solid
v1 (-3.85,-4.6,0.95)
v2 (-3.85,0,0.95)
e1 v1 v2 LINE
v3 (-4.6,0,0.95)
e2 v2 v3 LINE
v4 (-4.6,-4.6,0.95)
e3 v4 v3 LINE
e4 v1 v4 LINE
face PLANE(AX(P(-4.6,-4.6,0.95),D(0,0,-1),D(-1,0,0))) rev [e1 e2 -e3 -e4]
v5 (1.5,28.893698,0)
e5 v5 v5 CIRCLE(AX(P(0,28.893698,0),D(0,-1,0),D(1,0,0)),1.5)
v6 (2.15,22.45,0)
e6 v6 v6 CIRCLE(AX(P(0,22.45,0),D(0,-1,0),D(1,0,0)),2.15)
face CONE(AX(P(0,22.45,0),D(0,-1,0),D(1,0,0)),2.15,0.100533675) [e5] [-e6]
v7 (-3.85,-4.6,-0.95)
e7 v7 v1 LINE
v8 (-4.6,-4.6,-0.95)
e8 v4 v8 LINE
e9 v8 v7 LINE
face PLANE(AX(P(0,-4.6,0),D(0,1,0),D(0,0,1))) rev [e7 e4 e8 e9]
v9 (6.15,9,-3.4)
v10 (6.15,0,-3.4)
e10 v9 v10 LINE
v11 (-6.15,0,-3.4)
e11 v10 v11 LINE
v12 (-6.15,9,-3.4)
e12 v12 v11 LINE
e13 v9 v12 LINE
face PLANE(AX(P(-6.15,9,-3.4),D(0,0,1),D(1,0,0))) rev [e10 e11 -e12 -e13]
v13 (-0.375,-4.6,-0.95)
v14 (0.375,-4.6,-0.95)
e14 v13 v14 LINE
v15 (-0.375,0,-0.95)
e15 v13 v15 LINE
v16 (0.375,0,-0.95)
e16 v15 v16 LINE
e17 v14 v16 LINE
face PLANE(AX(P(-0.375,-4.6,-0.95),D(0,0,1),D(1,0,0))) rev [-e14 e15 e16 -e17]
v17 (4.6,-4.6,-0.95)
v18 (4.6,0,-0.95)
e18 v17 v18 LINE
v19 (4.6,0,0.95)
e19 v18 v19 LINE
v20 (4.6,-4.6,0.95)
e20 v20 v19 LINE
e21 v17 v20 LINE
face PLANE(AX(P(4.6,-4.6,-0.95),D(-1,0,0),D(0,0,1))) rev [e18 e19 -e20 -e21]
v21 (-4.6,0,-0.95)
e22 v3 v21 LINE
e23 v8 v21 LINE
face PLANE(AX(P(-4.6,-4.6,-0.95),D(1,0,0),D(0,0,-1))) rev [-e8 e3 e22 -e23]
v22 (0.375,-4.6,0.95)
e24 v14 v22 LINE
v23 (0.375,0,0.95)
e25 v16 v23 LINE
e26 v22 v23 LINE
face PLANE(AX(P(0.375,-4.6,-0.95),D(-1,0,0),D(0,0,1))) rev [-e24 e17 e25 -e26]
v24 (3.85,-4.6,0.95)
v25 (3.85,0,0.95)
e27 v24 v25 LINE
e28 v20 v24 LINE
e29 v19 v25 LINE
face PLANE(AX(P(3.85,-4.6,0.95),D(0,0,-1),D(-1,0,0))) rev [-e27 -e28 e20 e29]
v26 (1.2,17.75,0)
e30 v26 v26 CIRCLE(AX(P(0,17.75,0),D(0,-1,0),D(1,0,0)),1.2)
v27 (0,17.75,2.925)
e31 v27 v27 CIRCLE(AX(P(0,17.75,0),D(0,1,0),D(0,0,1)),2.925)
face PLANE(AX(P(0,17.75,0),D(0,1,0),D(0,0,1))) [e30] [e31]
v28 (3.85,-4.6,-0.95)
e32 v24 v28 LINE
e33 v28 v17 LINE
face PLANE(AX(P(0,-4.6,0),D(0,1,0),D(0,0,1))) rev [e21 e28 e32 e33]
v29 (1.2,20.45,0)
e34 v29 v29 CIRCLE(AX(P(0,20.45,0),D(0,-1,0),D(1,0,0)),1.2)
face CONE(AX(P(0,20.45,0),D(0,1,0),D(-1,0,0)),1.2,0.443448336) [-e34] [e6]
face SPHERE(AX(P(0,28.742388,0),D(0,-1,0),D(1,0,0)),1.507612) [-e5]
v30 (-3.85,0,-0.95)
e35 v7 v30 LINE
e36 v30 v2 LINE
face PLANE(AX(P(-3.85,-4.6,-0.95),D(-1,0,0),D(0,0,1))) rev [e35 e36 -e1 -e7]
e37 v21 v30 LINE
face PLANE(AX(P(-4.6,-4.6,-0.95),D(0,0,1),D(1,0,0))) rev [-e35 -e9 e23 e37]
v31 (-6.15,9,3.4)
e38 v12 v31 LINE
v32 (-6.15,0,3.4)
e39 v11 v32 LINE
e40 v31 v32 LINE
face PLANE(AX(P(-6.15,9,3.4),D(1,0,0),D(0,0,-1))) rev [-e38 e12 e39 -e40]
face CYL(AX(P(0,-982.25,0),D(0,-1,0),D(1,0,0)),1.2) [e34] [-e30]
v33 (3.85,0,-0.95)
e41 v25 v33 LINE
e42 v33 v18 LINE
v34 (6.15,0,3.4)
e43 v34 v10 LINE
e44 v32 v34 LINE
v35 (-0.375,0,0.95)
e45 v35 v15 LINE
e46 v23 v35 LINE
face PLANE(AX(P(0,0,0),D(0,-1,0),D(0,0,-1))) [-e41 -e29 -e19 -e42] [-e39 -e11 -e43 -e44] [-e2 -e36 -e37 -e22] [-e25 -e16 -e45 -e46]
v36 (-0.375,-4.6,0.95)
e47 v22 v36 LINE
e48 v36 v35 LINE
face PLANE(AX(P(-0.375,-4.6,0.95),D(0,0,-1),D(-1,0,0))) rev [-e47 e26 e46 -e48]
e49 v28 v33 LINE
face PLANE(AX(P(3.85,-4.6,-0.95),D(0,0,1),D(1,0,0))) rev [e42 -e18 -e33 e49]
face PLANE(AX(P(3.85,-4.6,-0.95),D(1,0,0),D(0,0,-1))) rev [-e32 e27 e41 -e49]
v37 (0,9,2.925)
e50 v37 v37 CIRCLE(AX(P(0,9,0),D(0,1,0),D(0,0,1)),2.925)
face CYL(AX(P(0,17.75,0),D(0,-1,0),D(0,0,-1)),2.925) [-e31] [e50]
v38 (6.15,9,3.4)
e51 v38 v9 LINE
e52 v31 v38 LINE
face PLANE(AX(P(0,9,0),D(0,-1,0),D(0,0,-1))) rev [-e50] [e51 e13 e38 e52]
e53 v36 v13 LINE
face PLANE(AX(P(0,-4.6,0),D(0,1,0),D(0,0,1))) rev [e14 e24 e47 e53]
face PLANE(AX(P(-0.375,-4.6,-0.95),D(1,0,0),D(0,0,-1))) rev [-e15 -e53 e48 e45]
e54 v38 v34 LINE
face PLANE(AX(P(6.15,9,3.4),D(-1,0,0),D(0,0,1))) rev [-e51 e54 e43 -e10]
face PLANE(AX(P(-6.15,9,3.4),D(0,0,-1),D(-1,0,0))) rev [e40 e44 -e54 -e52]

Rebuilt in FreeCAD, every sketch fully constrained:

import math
import FreeCAD as App
import Part
import Sketcher

doc = App.newDocument("Part")
body = doc.addObject("PartDesign::Body", "Body")

sketch1 = body.newObject("Sketcher::SketchObject", "Sketch")
sketch1.AttachmentSupport = (doc.getObject("XZ_Plane"), [""])
sketch1.MapMode = "FlatFace"
sketch1.addGeometry([
    Part.LineSegment(App.Vector(-6, -3, 0), App.Vector(-6, 3, 0)),
    Part.LineSegment(App.Vector(-6, 3, 0), App.Vector(6, 3, 0)),
    Part.LineSegment(App.Vector(6, 3, 0), App.Vector(6, -3, 0)),
    Part.LineSegment(App.Vector(6, -3, 0), App.Vector(-6, -3, 0)),
], False)
sketch1.addConstraint([
    Sketcher.Constraint("Coincident", 0, 2, 1, 1),
    Sketcher.Constraint("Coincident", 1, 2, 2, 1),
    Sketcher.Constraint("Coincident", 2, 2, 3, 1),
    Sketcher.Constraint("Coincident", 3, 2, 0, 1),
    Sketcher.Constraint("Vertical", 0),
    Sketcher.Constraint("Horizontal", 1),
    Sketcher.Constraint("Vertical", 2),
    Sketcher.Constraint("Horizontal", 3),
    Sketcher.Constraint("Symmetric", 0, 2, 2, 2, -1, 1),
    Sketcher.Constraint("DistanceX", 1, 1, 1, 2, 12.3),
    Sketcher.Constraint("DistanceY", 0, 1, 0, 2, 6.8),
])
pad1 = body.newObject("PartDesign::Pad", "Pad")
pad1.Profile = sketch1
pad1.Length = 9
pad1.Reversed = True

sketch2 = body.newObject("Sketcher::SketchObject", "Sketch001")
sketch2.AttachmentSupport = (doc.getObject("XZ_Plane"), [""])
sketch2.MapMode = "FlatFace"
sketch2.AttachmentOffset = App.Placement(App.Vector(0, 0, -9), App.Rotation())
sketch2.addGeometry(Part.Circle(App.Vector(0, 0, 0), App.Vector(0, 0, 1), 2.9), False)
sketch2.addConstraint([
    Sketcher.Constraint("Coincident", 0, 3, -1, 1),
    Sketcher.Constraint("Diameter", 0, 5.85),
])
pad2 = body.newObject("PartDesign::Pad", "Pad001")
pad2.Profile = sketch2
pad2.Length = 8.75
pad2.Reversed = True

sketch3 = body.newObject("Sketcher::SketchObject", "Sketch002")
sketch3.AttachmentSupport = (doc.getObject("XY_Plane"), [""])
sketch3.MapMode = "FlatFace"
sketch3.addGeometry([
    Part.LineSegment(App.Vector(0, 17.8, 0), App.Vector(1.2, 17.8, 0)),
    Part.LineSegment(App.Vector(1.2, 17.8, 0), App.Vector(1.2, 20.4, 0)),
    Part.LineSegment(App.Vector(1.2, 20.4, 0), App.Vector(2.1, 22.4, 0)),
    Part.LineSegment(App.Vector(2.1, 22.4, 0), App.Vector(1.5, 28.9, 0)),
    Part.ArcOfCircle(Part.Circle(App.Vector(0, 28.7, 0), App.Vector(0, 0, 1), 1.5), math.radians(6), math.radians(90)),
    Part.LineSegment(App.Vector(0, 30.2, 0), App.Vector(0, 17.8, 0)),
], False)
sketch3.addConstraint([
    Sketcher.Constraint("Coincident", 0, 2, 1, 1),
    Sketcher.Constraint("Coincident", 1, 2, 2, 1),
    Sketcher.Constraint("Coincident", 2, 2, 3, 1),
    Sketcher.Constraint("Tangent", 3, 2, 4, 1),
    Sketcher.Constraint("Coincident", 4, 2, 5, 1),
    Sketcher.Constraint("Coincident", 5, 2, 0, 1),
    Sketcher.Constraint("Horizontal", 0),
    Sketcher.Constraint("Vertical", 1),
    Sketcher.Constraint("Vertical", 5),
    Sketcher.Constraint("PointOnObject", 4, 3, -2),
    Sketcher.Constraint("PointOnObject", 4, 2, -2),
    Sketcher.Constraint("DistanceX", 0, 1, 0, 2, 1.2),
    Sketcher.Constraint("DistanceY", 1, 1, 1, 2, 2.7),
    Sketcher.Constraint("DistanceY", 5, 2, 5, 1, 12.5),
    Sketcher.Constraint("DistanceY", 1, 2, 2, 2, 2.0),
    Sketcher.Constraint("DistanceX", -1, 1, 3, 2, 1.5),
    Sketcher.Constraint("DistanceY", -1, 1, 0, 2, 17.75),
    Sketcher.Constraint("DistanceX", -1, 1, 2, 2, 2.15),
])
revolution = body.newObject("PartDesign::Revolution", "Revolution")
revolution.Profile = sketch3
revolution.ReferenceAxis = (sketch3, ["V_Axis"])
revolution.Angle = 360

sketch4 = body.newObject("Sketcher::SketchObject", "Sketch003")
sketch4.AttachmentSupport = (doc.getObject("XZ_Plane"), [""])
sketch4.MapMode = "FlatFace"
sketch4.addGeometry([
    Part.LineSegment(App.Vector(-0.4, 0.9, 0), App.Vector(-0.4, -0.9, 0)),
    Part.LineSegment(App.Vector(-0.4, -0.9, 0), App.Vector(0.4, -0.9, 0)),
    Part.LineSegment(App.Vector(0.4, -0.9, 0), App.Vector(0.4, 0.9, 0)),
    Part.LineSegment(App.Vector(0.4, 0.9, 0), App.Vector(-0.4, 0.9, 0)),
    Part.LineSegment(App.Vector(-4.6, 0.9, 0), App.Vector(-4.6, -0.9, 0)),
    Part.LineSegment(App.Vector(-4.6, -0.9, 0), App.Vector(-3.9, -0.9, 0)),
    Part.LineSegment(App.Vector(-3.9, -0.9, 0), App.Vector(-3.9, 0.9, 0)),
    Part.LineSegment(App.Vector(-3.9, 0.9, 0), App.Vector(-4.6, 0.9, 0)),
    Part.LineSegment(App.Vector(3.9, 0.9, 0), App.Vector(3.9, -0.9, 0)),
    Part.LineSegment(App.Vector(3.9, -0.9, 0), App.Vector(4.6, -0.9, 0)),
    Part.LineSegment(App.Vector(4.6, -0.9, 0), App.Vector(4.6, 0.9, 0)),
    Part.LineSegment(App.Vector(4.6, 0.9, 0), App.Vector(3.9, 0.9, 0)),
], False)
sketch4.addConstraint([
    Sketcher.Constraint("Coincident", 0, 2, 1, 1),
    Sketcher.Constraint("Coincident", 1, 2, 2, 1),
    Sketcher.Constraint("Coincident", 2, 2, 3, 1),
    Sketcher.Constraint("Coincident", 3, 2, 0, 1),
    Sketcher.Constraint("Coincident", 4, 2, 5, 1),
    Sketcher.Constraint("Coincident", 5, 2, 6, 1),
    Sketcher.Constraint("Coincident", 6, 2, 7, 1),
    Sketcher.Constraint("Coincident", 7, 2, 4, 1),
    Sketcher.Constraint("Coincident", 8, 2, 9, 1),
    Sketcher.Constraint("Coincident", 9, 2, 10, 1),
    Sketcher.Constraint("Coincident", 10, 2, 11, 1),
    Sketcher.Constraint("Coincident", 11, 2, 8, 1),
    Sketcher.Constraint("Vertical", 0),
    Sketcher.Constraint("Horizontal", 1),
    Sketcher.Constraint("Vertical", 2),
    Sketcher.Constraint("Horizontal", 3),
    Sketcher.Constraint("Vertical", 4),
    Sketcher.Constraint("Horizontal", 5),
    Sketcher.Constraint("Vertical", 6),
    Sketcher.Constraint("Horizontal", 7),
    Sketcher.Constraint("Vertical", 8),
    Sketcher.Constraint("Horizontal", 9),
    Sketcher.Constraint("Vertical", 10),
    Sketcher.Constraint("Horizontal", 11),
    Sketcher.Constraint("Symmetric", 0, 2, 2, 2, -1, 1),
    Sketcher.Constraint("Symmetric", 6, 2, 8, 2, -1, 1),
    Sketcher.Constraint("Symmetric", 4, 2, 10, 2, -1, 1),
    Sketcher.Constraint("Horizontal", 1, 2, 4, 2),
    Sketcher.Constraint("Horizontal", 3, 2, 6, 2),
    Sketcher.Constraint("Equal", 3, 5),
    Sketcher.Constraint("DistanceY", 0, 2, 0, 1, 1.9),
    Sketcher.Constraint("DistanceX", 1, 1, 1, 2, 0.75),
    Sketcher.Constraint("DistanceX", 4, 2, -1, 1, 4.6),
])
pad3 = body.newObject("PartDesign::Pad", "Pad002")
pad3.Profile = sketch4
pad3.Length = 4.6

doc.recompute()
